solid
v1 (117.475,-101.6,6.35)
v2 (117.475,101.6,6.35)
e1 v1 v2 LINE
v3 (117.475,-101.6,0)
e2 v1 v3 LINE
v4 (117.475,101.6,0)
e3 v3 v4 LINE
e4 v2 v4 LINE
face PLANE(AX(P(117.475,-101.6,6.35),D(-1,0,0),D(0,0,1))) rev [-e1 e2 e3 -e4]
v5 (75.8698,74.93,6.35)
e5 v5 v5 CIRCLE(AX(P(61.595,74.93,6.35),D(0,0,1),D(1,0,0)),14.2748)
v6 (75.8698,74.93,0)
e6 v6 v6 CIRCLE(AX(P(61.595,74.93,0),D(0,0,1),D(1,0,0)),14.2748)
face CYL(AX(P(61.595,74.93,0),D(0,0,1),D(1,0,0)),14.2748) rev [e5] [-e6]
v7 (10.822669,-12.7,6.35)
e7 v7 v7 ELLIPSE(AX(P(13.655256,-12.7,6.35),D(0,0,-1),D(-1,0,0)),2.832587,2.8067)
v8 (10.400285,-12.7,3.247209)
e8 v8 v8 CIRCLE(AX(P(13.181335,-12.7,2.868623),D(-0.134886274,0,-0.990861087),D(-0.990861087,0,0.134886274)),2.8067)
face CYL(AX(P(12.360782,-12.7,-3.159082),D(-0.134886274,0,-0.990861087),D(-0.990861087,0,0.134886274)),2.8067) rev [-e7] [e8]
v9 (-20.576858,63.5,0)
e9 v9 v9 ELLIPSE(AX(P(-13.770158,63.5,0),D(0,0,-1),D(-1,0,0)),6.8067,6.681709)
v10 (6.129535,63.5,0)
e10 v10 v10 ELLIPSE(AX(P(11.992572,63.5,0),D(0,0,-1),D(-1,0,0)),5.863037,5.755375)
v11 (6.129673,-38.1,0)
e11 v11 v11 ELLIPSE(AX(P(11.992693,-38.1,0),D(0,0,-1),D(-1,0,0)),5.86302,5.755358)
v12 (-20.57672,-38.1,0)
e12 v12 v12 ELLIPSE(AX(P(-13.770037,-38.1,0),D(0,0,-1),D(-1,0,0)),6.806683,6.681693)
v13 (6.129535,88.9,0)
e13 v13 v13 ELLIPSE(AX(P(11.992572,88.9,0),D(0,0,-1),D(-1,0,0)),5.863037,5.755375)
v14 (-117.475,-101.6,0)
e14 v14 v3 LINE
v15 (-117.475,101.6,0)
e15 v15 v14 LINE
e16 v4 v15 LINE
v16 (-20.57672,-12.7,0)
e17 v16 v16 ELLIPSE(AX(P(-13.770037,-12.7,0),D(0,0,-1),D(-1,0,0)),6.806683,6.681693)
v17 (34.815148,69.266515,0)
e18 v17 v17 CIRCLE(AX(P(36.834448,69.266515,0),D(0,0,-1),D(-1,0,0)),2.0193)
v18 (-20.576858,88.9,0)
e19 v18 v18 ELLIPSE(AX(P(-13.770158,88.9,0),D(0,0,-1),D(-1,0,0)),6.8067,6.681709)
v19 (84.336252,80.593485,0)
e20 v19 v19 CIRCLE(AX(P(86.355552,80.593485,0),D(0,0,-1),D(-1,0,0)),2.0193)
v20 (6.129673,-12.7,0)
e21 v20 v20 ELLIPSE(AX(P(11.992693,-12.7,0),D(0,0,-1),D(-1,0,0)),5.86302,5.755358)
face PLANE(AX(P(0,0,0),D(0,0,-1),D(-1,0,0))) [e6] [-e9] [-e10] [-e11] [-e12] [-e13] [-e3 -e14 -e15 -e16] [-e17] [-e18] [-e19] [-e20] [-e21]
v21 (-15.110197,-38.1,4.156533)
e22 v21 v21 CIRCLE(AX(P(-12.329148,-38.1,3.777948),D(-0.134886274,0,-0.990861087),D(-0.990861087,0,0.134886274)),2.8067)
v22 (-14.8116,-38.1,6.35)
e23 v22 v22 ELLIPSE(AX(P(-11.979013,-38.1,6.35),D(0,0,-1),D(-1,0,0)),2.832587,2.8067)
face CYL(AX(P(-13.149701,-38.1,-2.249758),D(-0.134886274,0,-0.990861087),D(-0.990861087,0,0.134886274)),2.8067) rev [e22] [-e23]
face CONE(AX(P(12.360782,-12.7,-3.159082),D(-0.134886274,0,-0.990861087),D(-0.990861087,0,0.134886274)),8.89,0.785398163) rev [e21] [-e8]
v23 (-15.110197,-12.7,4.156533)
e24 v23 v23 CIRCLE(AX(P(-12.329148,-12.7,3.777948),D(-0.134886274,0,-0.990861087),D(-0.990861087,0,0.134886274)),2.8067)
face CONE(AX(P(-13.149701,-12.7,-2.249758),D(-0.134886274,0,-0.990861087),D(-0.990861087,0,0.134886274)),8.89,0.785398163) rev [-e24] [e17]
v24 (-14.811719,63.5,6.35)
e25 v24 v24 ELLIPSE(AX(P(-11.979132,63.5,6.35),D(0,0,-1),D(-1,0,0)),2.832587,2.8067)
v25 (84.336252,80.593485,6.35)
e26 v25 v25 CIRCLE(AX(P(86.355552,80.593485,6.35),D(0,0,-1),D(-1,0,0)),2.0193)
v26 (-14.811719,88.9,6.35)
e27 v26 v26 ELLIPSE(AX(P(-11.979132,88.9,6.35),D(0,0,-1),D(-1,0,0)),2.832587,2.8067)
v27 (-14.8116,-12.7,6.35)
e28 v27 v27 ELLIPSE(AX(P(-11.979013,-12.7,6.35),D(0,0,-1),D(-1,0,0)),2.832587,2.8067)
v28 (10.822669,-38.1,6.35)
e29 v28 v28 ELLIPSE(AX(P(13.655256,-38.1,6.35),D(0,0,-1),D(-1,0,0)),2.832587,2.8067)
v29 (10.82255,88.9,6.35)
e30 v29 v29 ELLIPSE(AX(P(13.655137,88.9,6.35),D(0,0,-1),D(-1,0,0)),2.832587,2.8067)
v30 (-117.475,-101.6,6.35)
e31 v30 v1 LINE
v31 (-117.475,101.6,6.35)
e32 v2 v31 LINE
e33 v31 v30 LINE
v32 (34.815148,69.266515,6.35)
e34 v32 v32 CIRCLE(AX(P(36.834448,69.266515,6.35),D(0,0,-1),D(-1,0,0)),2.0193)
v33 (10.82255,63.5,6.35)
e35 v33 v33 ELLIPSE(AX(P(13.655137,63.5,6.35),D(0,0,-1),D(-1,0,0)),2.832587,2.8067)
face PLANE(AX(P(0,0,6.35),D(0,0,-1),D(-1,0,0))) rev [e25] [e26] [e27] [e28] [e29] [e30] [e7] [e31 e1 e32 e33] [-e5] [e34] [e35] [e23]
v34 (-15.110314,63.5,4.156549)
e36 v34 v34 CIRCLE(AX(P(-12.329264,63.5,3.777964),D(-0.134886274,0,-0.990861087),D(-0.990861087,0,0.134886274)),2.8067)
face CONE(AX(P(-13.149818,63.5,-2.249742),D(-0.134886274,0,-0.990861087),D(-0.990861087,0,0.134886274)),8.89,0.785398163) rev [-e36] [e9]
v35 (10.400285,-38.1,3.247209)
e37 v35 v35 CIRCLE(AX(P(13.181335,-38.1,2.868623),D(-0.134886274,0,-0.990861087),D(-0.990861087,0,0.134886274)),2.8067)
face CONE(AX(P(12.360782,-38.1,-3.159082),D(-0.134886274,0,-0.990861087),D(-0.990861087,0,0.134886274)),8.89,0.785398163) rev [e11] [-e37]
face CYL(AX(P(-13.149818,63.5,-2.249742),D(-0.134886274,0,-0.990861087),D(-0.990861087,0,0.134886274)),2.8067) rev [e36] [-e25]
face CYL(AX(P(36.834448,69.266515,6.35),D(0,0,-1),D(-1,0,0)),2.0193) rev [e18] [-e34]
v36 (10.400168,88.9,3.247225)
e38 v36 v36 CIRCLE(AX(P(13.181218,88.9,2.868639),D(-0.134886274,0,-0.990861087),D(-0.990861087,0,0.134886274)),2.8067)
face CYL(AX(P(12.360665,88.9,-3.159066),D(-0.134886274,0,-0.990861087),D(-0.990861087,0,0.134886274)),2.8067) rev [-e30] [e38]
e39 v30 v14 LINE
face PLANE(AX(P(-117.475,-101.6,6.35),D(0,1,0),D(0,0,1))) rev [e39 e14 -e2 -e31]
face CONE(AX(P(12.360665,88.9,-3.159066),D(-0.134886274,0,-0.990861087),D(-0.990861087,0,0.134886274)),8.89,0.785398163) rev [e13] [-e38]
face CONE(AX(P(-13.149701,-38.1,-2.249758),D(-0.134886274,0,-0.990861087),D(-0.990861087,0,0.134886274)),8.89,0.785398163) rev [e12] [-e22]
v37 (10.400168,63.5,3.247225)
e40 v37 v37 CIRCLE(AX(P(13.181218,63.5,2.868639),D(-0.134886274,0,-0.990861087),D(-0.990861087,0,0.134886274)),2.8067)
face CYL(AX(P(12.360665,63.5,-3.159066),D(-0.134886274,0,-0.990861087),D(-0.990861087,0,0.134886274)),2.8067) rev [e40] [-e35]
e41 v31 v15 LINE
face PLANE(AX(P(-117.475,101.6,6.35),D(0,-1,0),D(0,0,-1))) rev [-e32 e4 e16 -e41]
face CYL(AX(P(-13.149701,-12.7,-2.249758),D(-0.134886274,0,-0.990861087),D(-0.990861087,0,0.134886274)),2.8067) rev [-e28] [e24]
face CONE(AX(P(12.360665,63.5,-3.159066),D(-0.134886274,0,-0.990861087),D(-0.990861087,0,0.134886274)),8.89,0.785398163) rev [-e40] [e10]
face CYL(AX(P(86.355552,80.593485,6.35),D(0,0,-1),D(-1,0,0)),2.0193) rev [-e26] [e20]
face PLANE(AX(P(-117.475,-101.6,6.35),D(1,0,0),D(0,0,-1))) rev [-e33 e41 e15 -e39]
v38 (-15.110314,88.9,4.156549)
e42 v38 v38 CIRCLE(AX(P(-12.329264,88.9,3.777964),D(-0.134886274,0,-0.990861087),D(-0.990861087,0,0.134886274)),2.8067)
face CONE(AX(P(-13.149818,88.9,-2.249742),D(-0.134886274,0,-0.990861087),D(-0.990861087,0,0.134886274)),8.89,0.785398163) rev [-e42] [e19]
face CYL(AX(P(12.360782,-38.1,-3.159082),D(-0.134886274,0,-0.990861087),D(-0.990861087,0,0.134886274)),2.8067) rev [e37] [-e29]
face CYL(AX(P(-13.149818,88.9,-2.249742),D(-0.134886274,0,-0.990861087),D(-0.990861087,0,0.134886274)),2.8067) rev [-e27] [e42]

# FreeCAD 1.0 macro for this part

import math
import FreeCAD as App
import Part
import Sketcher
from FreeCAD import Vector
Q = App.Units.Quantity

doc = App.newDocument("Part")
body = doc.addObject("PartDesign::Body", "Body")

# Sketch on XY plane
sketch1 = body.newObject("Sketcher::SketchObject", "Sketch")
sketch1.AttachmentSupport = (doc.getObject("XY_Plane"), [""])
sketch1.MapMode = "FlatFace"
sketch1.addGeometry([
    Part.LineSegment(Vector(-117, 102, 0), Vector(-117, -102, 0)),
    Part.LineSegment(Vector(-117, -102, 0), Vector(117, -102, 0)),
    Part.LineSegment(Vector(117, -102, 0), Vector(117, 102, 0)),
    Part.LineSegment(Vector(117, 102, 0), Vector(-117, 102, 0)),
], False)
sketch1.addConstraint([
    Sketcher.Constraint("Coincident", 0, 2, 1, 1),
    Sketcher.Constraint("Coincident", 1, 2, 2, 1),
    Sketcher.Constraint("Coincident", 2, 2, 3, 1),
    Sketcher.Constraint("Coincident", 3, 2, 0, 1),
    Sketcher.Constraint("Vertical", 0),
    Sketcher.Constraint("Horizontal", 1),
    Sketcher.Constraint("Vertical", 2),
    Sketcher.Constraint("Horizontal", 3),
    Sketcher.Constraint("Symmetric", 0, 2, 2, 2, -1, 1),
    Sketcher.Constraint("DistanceY", 0, 2, 0, 1, Q("8 in")),
    Sketcher.Constraint("DistanceX", 1, 1, 1, 2, Q("9.25 in")),
])
pad1 = body.newObject("PartDesign::Pad", "Pad")
pad1.Profile = sketch1
pad1.Length = Q("0.25 in")

# Sketch on XY plane
sketch2 = body.newObject("Sketcher::SketchObject", "Sketch001")
sketch2.AttachmentSupport = (doc.getObject("XY_Plane"), [""])
sketch2.MapMode = "FlatFace"
sketch2.AttachmentOffset = App.Placement(Vector(0, 0, 0.25 * 25.4), App.Rotation())
sketch2.addGeometry(Part.Circle(Vector(62, 75, 0), Vector(0, 0, 1), 14), False)
sketch2.addConstraint([
    Sketcher.Constraint("Diameter", 0, Q("1.124 in")),
    Sketcher.Constraint("DistanceY", -1, 1, 0, 3, Q("2.95 in")),
    Sketcher.Constraint("DistanceX", -1, 1, 0, 3, Q("2.425 in")),
])
pocket1 = body.newObject("PartDesign::Pocket", "Pocket")
pocket1.Profile = sketch2
pocket1.Type = "ThroughAll"

# Sketch on an angled plane
sketch3 = body.newObject("Sketcher::SketchObject", "Sketch002")
sketch3.Placement = App.Placement(Vector(-0.539938, 0, -3.966329), App.Rotation(Vector(0.990861087, 0, -0.134886274), Vector(0, -1.000000001, 0), Vector(-0.134886274, 0, -0.990861087), "ZXY"))
sketch3.addGeometry([
    Part.Circle(Vector(-12.7, 38.1, 0), Vector(0, 0, 1), 2.8),
    Part.Circle(Vector(-12.7, 12.7, 0), Vector(0, 0, 1), 2.8),
    Part.Circle(Vector(-12.7, -63.5, 0), Vector(0, 0, 1), 2.8),
    Part.Circle(Vector(-12.7, -88.9, 0), Vector(0, 0, 1), 2.8),
], False)
sketch3.addConstraint([
    Sketcher.Constraint("Equal", 0, 1),
    Sketcher.Constraint("Equal", 1, 2),
    Sketcher.Constraint("Equal", 2, 3),
    Sketcher.Constraint("Vertical", 0, 3, 1, 3),
    Sketcher.Constraint("Vertical", 2, 3, 3, 3),
    Sketcher.Constraint("Diameter", 0, Q("0.221 in")),
    Sketcher.Constraint("DistanceY", 1, 3, 0, 3, Q("1 in")),
    Sketcher.Constraint("DistanceY", 2, 3, 1, 3, Q("3 in")),
    Sketcher.Constraint("DistanceY", 3, 3, 2, 3, Q("1 in")),
    Sketcher.Constraint("DistanceY", -1, 1, 0, 3, Q("1.5 in")),
    Sketcher.Constraint("DistanceX", 0, 3, -1, 1, Q("12.726066 mm")),
    Sketcher.Constraint("DistanceX", 2, 3, -1, 1, Q("12.726184 mm")),
])
doc.recompute()
hole = body.newObject("PartDesign::Hole", "Hole")
hole.Profile = sketch3
hole.ThreadType = "None"
hole.Diameter = Q("0.221 in")
hole.DepthType = "ThroughAll"
hole.HoleCutType = "Countersink"
hole.HoleCutDiameter = Q("0.7 in")
hole.HoleCutCountersinkAngle = 90

# Sketch on an angled plane
sketch4 = body.newObject("Sketcher::SketchObject", "Sketch003")
sketch4.Placement = App.Placement(Vector(-0.197327, 0, -1.449542), App.Rotation(Vector(0.990861087, 0, -0.134886274), Vector(0, -1.000000001, 0), Vector(-0.134886274, 0, -0.990861087), "ZXY"))
sketch4.addGeometry([
    Part.Circle(Vector(12.7, 38.1, 0), Vector(0, 0, 1), 2.8),
    Part.Circle(Vector(12.7, 12.7, 0), Vector(0, 0, 1), 2.8),
    Part.Circle(Vector(12.7, -63.5, 0), Vector(0, 0, 1), 2.8),
    Part.Circle(Vector(12.7, -88.9, 0), Vector(0, 0, 1), 2.8),
], False)
sketch4.addConstraint([
    Sketcher.Constraint("Equal", 0, 1),
    Sketcher.Constraint("Equal", 1, 2),
    Sketcher.Constraint("Equal", 2, 3),
    Sketcher.Constraint("Vertical", 0, 3, 1, 3),
    Sketcher.Constraint("Vertical", 2, 3, 3, 3),
    Sketcher.Constraint("Diameter", 0, Q("0.221 in")),
    Sketcher.Constraint("DistanceY", 1, 3, 0, 3, Q("1 in")),
    Sketcher.Constraint("DistanceY", 2, 3, 1, 3, Q("3 in")),
    Sketcher.Constraint("DistanceY", 3, 3, 2, 3, Q("1 in")),
    Sketcher.Constraint("DistanceY", -1, 1, 0, 3, Q("1.5 in")),
    Sketcher.Constraint("DistanceX", -1, 1, 0, 3, Q("12.673934 mm")),
    Sketcher.Constraint("DistanceX", -1, 1, 2, 3, Q("12.673816 mm")),
])
doc.recompute()
hole2 = body.newObject("PartDesign::Hole", "Hole001")
hole2.Profile = sketch4
hole2.ThreadType = "None"
hole2.Diameter = Q("0.221 in")
hole2.DepthType = "ThroughAll"
hole2.HoleCutType = "Countersink"
hole2.HoleCutDiameter = Q("0.7 in")
hole2.HoleCutCountersinkAngle = 90

# Sketch on XY plane
sketch5 = body.newObject("Sketcher::SketchObject", "Sketch004")
sketch5.AttachmentSupport = (doc.getObject("XY_Plane"), [""])
sketch5.MapMode = "FlatFace"
sketch5.addGeometry([
    Part.Circle(Vector(86.4, 80.6, 0), Vector(0, 0, 1), 2),
    Part.ArcOfCircle(Part.Circle(Vector(36.8, 69.3, 0), Vector(0, 0, 1), 2), math.radians(-77), math.radians(103)),
    Part.ArcOfCircle(Part.Circle(Vector(36.8, 69.3, 0), Vector(0, 0, 1), 2), math.radians(103), math.radians(283)),
], False)
sketch5.addConstraint([
    Sketcher.Constraint("Tangent", 1, 1, 2, 2),
    Sketcher.Constraint("Coincident", 2, 1, 1, 2),
    Sketcher.Constraint("Equal", 0, 1),
    Sketcher.Constraint("Diameter", 0, Q("0.159 in")),
    Sketcher.Constraint("DistanceX", -1, 1, 2, 1, Q("36.384201 mm")),
    Sketcher.Constraint("DistanceY", -1, 1, 1, 1, Q("67.298051 mm")),
    Sketcher.Constraint("DistanceY", -1, 1, 2, 1, Q("71.234979 mm")),
    Sketcher.Constraint("DistanceY", 1, 3, 0, 3, Q("11.32697 mm")),
    Sketcher.Constraint("DistanceX", 2, 1, 0, 3, Q("49.971351 mm")),
    Sketcher.Constraint("DistanceY", -1, 1, 0, 3, Q("80.593485 mm")),
])
pocket2 = body.newObject("PartDesign::Pocket", "Pocket001")
pocket2.Profile = sketch5
pocket2.Type = "ThroughAll"
pocket2.Reversed = True

doc.recompute()
